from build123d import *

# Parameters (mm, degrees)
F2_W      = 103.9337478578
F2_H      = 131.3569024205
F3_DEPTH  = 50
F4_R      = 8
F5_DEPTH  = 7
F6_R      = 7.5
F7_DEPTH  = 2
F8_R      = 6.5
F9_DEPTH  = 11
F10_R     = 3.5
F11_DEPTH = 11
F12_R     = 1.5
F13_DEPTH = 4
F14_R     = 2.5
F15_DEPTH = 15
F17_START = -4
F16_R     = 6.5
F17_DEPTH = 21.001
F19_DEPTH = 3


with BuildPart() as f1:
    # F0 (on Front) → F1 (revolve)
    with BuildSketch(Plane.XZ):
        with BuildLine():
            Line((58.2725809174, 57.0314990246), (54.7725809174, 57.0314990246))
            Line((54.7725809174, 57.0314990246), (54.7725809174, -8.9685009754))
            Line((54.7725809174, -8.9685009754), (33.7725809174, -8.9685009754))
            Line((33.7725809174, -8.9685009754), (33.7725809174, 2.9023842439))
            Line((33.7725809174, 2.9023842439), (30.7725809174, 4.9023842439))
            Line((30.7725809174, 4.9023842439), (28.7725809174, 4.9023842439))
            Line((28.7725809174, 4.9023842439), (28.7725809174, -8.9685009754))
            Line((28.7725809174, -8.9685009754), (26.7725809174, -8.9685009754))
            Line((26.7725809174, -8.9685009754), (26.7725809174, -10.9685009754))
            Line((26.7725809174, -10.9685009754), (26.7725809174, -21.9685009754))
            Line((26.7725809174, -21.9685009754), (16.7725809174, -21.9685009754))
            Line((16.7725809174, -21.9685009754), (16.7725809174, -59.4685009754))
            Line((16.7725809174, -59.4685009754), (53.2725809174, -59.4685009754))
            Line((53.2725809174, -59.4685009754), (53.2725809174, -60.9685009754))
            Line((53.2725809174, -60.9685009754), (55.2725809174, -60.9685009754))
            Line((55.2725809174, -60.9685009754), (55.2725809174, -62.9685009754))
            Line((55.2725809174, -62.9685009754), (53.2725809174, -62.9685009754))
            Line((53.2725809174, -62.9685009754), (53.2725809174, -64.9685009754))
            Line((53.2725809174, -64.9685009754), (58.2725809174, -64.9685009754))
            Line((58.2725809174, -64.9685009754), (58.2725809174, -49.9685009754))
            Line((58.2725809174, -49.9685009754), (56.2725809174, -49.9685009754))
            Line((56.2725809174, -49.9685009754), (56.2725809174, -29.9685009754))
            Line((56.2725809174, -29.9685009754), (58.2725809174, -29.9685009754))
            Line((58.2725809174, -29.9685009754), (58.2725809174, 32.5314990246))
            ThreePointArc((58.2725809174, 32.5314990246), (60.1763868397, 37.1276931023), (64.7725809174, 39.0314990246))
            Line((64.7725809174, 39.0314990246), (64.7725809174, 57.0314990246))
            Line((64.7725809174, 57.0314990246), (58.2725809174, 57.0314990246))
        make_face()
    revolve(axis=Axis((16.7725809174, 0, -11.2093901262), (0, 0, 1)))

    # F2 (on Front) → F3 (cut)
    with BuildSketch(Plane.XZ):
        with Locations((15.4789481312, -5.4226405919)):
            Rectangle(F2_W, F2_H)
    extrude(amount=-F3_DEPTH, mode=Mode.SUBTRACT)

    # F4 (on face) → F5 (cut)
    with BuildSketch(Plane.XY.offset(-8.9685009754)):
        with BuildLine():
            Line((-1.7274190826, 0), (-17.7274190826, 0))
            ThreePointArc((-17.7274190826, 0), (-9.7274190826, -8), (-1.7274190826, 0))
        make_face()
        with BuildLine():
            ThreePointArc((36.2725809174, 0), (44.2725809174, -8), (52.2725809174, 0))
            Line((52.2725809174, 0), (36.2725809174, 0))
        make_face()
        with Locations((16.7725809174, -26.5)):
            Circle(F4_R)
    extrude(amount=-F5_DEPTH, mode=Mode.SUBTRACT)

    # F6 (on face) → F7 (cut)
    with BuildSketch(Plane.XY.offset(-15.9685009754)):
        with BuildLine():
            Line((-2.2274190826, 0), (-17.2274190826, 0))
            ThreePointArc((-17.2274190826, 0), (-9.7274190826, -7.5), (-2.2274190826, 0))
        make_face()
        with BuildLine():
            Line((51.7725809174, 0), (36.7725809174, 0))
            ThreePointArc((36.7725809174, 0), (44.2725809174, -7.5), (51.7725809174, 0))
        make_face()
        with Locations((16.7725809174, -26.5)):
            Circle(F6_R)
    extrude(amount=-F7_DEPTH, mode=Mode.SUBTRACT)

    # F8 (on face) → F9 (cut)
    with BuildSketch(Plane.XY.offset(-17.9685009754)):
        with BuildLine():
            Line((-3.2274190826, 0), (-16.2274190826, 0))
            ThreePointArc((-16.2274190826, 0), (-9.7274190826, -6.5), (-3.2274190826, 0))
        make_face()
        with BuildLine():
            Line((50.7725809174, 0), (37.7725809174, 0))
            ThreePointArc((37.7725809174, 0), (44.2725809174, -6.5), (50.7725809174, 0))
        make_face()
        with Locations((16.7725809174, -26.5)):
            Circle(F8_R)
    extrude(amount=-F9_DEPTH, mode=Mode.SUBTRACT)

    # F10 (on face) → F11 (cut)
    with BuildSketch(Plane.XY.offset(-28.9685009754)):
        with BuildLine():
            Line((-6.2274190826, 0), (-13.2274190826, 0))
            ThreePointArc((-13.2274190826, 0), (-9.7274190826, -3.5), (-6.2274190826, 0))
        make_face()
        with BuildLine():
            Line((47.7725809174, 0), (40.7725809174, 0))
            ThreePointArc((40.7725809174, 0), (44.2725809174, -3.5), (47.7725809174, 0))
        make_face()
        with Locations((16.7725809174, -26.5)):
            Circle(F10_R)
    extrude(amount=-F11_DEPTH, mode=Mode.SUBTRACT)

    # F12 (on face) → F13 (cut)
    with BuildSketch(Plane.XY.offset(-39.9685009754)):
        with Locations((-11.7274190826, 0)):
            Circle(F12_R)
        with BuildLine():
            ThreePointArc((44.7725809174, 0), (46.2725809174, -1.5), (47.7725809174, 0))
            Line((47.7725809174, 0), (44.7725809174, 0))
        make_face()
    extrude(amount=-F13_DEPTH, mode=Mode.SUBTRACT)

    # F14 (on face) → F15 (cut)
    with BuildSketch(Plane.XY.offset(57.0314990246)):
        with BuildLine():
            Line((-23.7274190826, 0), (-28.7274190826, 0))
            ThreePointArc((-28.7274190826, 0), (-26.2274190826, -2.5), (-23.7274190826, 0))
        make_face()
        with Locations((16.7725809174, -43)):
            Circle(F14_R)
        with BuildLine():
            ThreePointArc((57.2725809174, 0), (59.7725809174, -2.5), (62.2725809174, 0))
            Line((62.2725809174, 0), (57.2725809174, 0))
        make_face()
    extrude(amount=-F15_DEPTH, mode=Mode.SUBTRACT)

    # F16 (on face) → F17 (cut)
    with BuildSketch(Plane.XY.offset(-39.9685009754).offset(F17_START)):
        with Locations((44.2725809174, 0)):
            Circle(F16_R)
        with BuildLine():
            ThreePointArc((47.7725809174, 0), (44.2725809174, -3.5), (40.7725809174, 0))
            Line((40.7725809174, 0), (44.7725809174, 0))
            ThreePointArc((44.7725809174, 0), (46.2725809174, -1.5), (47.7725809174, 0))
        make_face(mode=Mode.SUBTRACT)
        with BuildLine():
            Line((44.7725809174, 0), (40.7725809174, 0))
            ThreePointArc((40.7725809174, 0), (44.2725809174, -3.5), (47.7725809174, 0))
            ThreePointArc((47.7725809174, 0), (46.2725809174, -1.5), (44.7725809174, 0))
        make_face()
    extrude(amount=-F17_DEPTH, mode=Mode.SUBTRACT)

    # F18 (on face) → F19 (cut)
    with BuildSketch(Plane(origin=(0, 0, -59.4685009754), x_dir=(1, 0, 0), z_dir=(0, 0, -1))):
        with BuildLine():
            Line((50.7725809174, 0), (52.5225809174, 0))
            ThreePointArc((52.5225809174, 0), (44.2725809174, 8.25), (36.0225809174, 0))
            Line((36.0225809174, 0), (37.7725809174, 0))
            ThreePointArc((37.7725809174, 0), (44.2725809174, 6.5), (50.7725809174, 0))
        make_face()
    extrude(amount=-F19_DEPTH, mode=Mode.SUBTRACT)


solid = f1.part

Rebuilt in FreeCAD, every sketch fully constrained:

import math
import FreeCAD as App
import Part
import Sketcher
Q = App.Units.Quantity


def add_polygon(sketch, points):
    """Adds a closed chain of lines whose ends are joined by coincident constraints."""
    first, n = sketch.GeometryCount, len(points)
    for a, b in zip(points, points[1:] + points[:1]):
        sketch.addGeometry(Part.LineSegment(App.Vector(*a, 0), App.Vector(*b, 0)), False)
    for i in range(n):
        sketch.addConstraint(Sketcher.Constraint("Coincident", first + i, 2, first + (i + 1) % n, 1))

doc = App.newDocument("Part")
params = doc.addObject("Spreadsheet::Sheet", "Params")
for row, (alias, value) in enumerate([
    ("sketch1_radius", "6.5 mm"),
    ("sketch1_width", "21 mm"),
    ("sketch1_width2", "2 mm"),
    ("sketch1_width3", "10 mm"),
    ("sketch1_width4", "5 mm"),
    ("revolution_angle", "360 deg"),
    ("pocket1_length", "50 mm"),
    ("sketch3_diameter", "16 mm"),
    ("pocket2_length", "7 mm"),
    ("sketch4_diameter", "15 mm"),
    ("pocket3_length", "2 mm"),
    ("sketch5_diameter", "13 mm"),
    ("pocket4_length", "11 mm"),
    ("sketch6_diameter", "7 mm"),
    ("pocket5_length", "11 mm"),
    ("sketch7_diameter", "3 mm"),
    ("pocket6_length", "4 mm"),
    ("sketch8_diameter", "5 mm"),
    ("pocket7_length", "15 mm"),
    ("sketch9_diameter", "13 mm"),
    ("pocket8_length", "21.001 mm"),
    ("sketch10_radius", "6.5 mm"),
    ("sketch10_radius2", "8.25 mm"),
    ("pocket9_length", "3 mm"),
], start=1):
    params.set(f"A{row}", alias)
    params.set(f"B{row}", "=" + value)
    params.setAlias(f"B{row}", alias)

body = doc.addObject("PartDesign::Body", "Body")

# Sketch on XZ plane
sketch1 = body.newObject("Sketcher::SketchObject", "Sketch")
sketch1.AttachmentSupport = (doc.getObject("XZ_Plane"), [""])
sketch1.MapMode = "FlatFace"
sketch1.addGeometry([
    Part.LineSegment(App.Vector(54.8, 57, 0), App.Vector(54.8, -9, 0)),  # 0
    Part.LineSegment(App.Vector(54.8, -9, 0), App.Vector(33.8, -9, 0)),  # 1
    Part.LineSegment(App.Vector(33.8, -9, 0), App.Vector(33.8, 2.9, 0)),  # 2
    Part.LineSegment(App.Vector(33.8, 2.9, 0), App.Vector(30.8, 4.9, 0)),  # 3
    Part.LineSegment(App.Vector(30.8, 4.9, 0), App.Vector(28.8, 4.9, 0)),  # 4
    Part.LineSegment(App.Vector(28.8, 4.9, 0), App.Vector(28.8, -9, 0)),  # 5
    Part.LineSegment(App.Vector(28.8, -9, 0), App.Vector(26.8, -9, 0)),  # 6
    Part.LineSegment(App.Vector(26.8, -9, 0), App.Vector(26.8, -22, 0)),  # 7
    Part.LineSegment(App.Vector(26.8, -22, 0), App.Vector(16.8, -22, 0)),  # 8
    Part.LineSegment(App.Vector(16.8, -22, 0), App.Vector(16.8, -59.5, 0)),  # 9
    Part.LineSegment(App.Vector(16.8, -59.5, 0), App.Vector(53.3, -59.5, 0)),  # 10
    Part.LineSegment(App.Vector(53.3, -59.5, 0), App.Vector(53.3, -61, 0)),  # 11
    Part.LineSegment(App.Vector(53.3, -61, 0), App.Vector(55.3, -61, 0)),  # 12
    Part.LineSegment(App.Vector(55.3, -61, 0), App.Vector(55.3, -63, 0)),  # 13
    Part.LineSegment(App.Vector(55.3, -63, 0), App.Vector(53.3, -63, 0)),  # 14
    Part.LineSegment(App.Vector(53.3, -63, 0), App.Vector(53.3, -65, 0)),  # 15
    Part.LineSegment(App.Vector(53.3, -65, 0), App.Vector(58.3, -65, 0)),  # 16
    Part.LineSegment(App.Vector(58.3, -65, 0), App.Vector(58.3, -50, 0)),  # 17
    Part.LineSegment(App.Vector(58.3, -50, 0), App.Vector(56.3, -50, 0)),  # 18
    Part.LineSegment(App.Vector(56.3, -50, 0), App.Vector(56.3, -30, 0)),  # 19
    Part.LineSegment(App.Vector(56.3, -30, 0), App.Vector(58.3, -30, 0)),  # 20
    Part.LineSegment(App.Vector(58.3, -30, 0), App.Vector(58.3, 32.5, 0)),  # 21
    Part.ArcOfCircle(Part.Circle(App.Vector(64.8, 32.5, 0), App.Vector(0, 0, 1), 6.5), math.radians(90), math.radians(180)),  # 22
    Part.LineSegment(App.Vector(64.8, 39, 0), App.Vector(64.8, 57, 0)),  # 23
    Part.LineSegment(App.Vector(64.8, 57, 0), App.Vector(54.8, 57, 0)),  # 24
], False)
sketch1.addGeometry(Part.LineSegment(App.Vector(16.8, -65, 0), App.Vector(16.8, 57, 0)), True)  # axis
sketch1.addConstraint([
    Sketcher.Constraint("Coincident", 0, 2, 1, 1),
    Sketcher.Constraint("Coincident", 1, 2, 2, 1),
    Sketcher.Constraint("Coincident", 2, 2, 3, 1),
    Sketcher.Constraint("Coincident", 3, 2, 4, 1),
    Sketcher.Constraint("Coincident", 4, 2, 5, 1),
    Sketcher.Constraint("Coincident", 5, 2, 6, 1),
    Sketcher.Constraint("Coincident", 6, 2, 7, 1),
    Sketcher.Constraint("Coincident", 7, 2, 8, 1),
    Sketcher.Constraint("Coincident", 8, 2, 9, 1),
    Sketcher.Constraint("Coincident", 9, 2, 10, 1),
    Sketcher.Constraint("Coincident", 10, 2, 11, 1),
    Sketcher.Constraint("Coincident", 11, 2, 12, 1),
    Sketcher.Constraint("Coincident", 12, 2, 13, 1),
    Sketcher.Constraint("Coincident", 13, 2, 14, 1),
    Sketcher.Constraint("Coincident", 14, 2, 15, 1),
    Sketcher.Constraint("Coincident", 15, 2, 16, 1),
    Sketcher.Constraint("Coincident", 16, 2, 17, 1),
    Sketcher.Constraint("Coincident", 17, 2, 18, 1),
    Sketcher.Constraint("Coincident", 18, 2, 19, 1),
    Sketcher.Constraint("Coincident", 19, 2, 20, 1),
    Sketcher.Constraint("Coincident", 20, 2, 21, 1),
    Sketcher.Constraint("Tangent", 21, 2, 22, 2),
    Sketcher.Constraint("Coincident", 22, 1, 23, 1),
    Sketcher.Constraint("Coincident", 23, 2, 24, 1),
    Sketcher.Constraint("Coincident", 24, 2, 0, 1),
    Sketcher.Constraint("Vertical", 0),
    Sketcher.Constraint("Horizontal", 1),
    Sketcher.Constraint("Vertical", 2),
    Sketcher.Constraint("Horizontal", 4),
    Sketcher.Constraint("Vertical", 5),
    Sketcher.Constraint("Horizontal", 6),
    Sketcher.Constraint("Vertical", 7),
    Sketcher.Constraint("Horizontal", 8),
    Sketcher.Constraint("Vertical", 9),
    Sketcher.Constraint("Horizontal", 10),
    Sketcher.Constraint("Vertical", 11),
    Sketcher.Constraint("Horizontal", 12),
    Sketcher.Constraint("Vertical", 13),
    Sketcher.Constraint("Horizontal", 14),
    Sketcher.Constraint("Vertical", 15),
    Sketcher.Constraint("Horizontal", 16),
    Sketcher.Constraint("Vertical", 17),
    Sketcher.Constraint("Horizontal", 18),
    Sketcher.Constraint("Vertical", 19),
    Sketcher.Constraint("Horizontal", 20),
    Sketcher.Constraint("Vertical", 21),
    Sketcher.Constraint("Vertical", 23),
    Sketcher.Constraint("Horizontal", 24),
    Sketcher.Constraint("Vertical", 25),
    Sketcher.Constraint("Horizontal", 1, 2, 5, 2),
    Sketcher.Constraint("Horizontal", 16, 2, 25, 1),
    Sketcher.Constraint("Horizontal", 24, 2, 25, 2),
    Sketcher.Constraint("Vertical", 11, 2, 14, 2),
    Sketcher.Constraint("Vertical", 17, 2, 20, 2),
    Sketcher.Constraint("Vertical", 9, 2, 25, 1),
    Sketcher.Constraint("Equal", 4, 6),
    Sketcher.Constraint("Equal", 6, 12),
    Sketcher.Constraint("Equal", 14, 18),
    Sketcher.Constraint("Equal", 8, 24),
    Sketcher.Constraint("Equal", 20, 13),
    Sketcher.Constraint("Equal", 13, 15),
    Sketcher.Constraint("Radius", 22, Q("6.5 mm")),
    Sketcher.Constraint("DistanceX", 1, 2, 1, 1, Q("21 mm")),
    Sketcher.Constraint("DistanceX", 4, 2, 4, 1, Q("2 mm")),
    Sketcher.Constraint("DistanceX", 8, 2, 8, 1, Q("10 mm")),
    Sketcher.Constraint("DistanceX", 16, 1, 16, 2, Q("5 mm")),
    Sketcher.Constraint("DistanceY", 0, 2, 0, 1, Q("66 mm")),
    Sketcher.Constraint("DistanceY", 7, 2, 7, 1, Q("13 mm")),
    Sketcher.Constraint("DistanceY", 17, 1, 17, 2, Q("15 mm")),
    Sketcher.Constraint("DistanceY", 19, 1, 19, 2, Q("20 mm")),
    Sketcher.Constraint("DistanceY", 23, 1, 23, 2, Q("18 mm")),
    Sketcher.Constraint("DistanceY", 25, 1, 25, 2, Q("122 mm")),
    Sketcher.Constraint("DistanceX", 10, 1, 10, 2, Q("36.5 mm")),
    Sketcher.Constraint("DistanceY", 9, 2, 9, 1, Q("37.5 mm")),
    Sketcher.Constraint("DistanceX", 0, 2, 22, 3, Q("10 mm")),
    Sketcher.Constraint("DistanceY", 2, 2, 3, 2, Q("2 mm")),
    Sketcher.Constraint("DistanceY", -1, 1, 22, 3, Q("32.531499 mm")),
    Sketcher.Constraint("DistanceY", 2, 1, 2, 2, Q("11.870885 mm")),
    Sketcher.Constraint("DistanceX", -1, 1, 22, 3, Q("64.772581 mm")),
])
sketch1.setExpression("Constraints[61]", "Params.sketch1_radius")
sketch1.setExpression("Constraints[62]", "Params.sketch1_width")
sketch1.setExpression("Constraints[63]", "Params.sketch1_width2")
sketch1.setExpression("Constraints[64]", "Params.sketch1_width3")
sketch1.setExpression("Constraints[65]", "Params.sketch1_width4")
revolution = body.newObject("PartDesign::Revolution", "Revolution")
revolution.Profile = sketch1
revolution.ReferenceAxis = (sketch1, ["Axis0"])
revolution.setExpression("Angle", "Params.revolution_angle")

# Sketch on XZ plane
sketch2 = body.newObject("Sketcher::SketchObject", "Sketch001")
sketch2.AttachmentSupport = (doc.getObject("XZ_Plane"), [""])
sketch2.MapMode = "FlatFace"
add_polygon(sketch2, [(-36, 60), (-36, -71), (67, -71), (67, 60)])  # lines 0-3
sketch2.addConstraint([
    Sketcher.Constraint("Vertical", 0),
    Sketcher.Constraint("Horizontal", 1),
    Sketcher.Constraint("Vertical", 2),
    Sketcher.Constraint("Horizontal", 3),
    Sketcher.Constraint("DistanceX", 1, 1, 1, 2, Q("103.933748 mm")),
    Sketcher.Constraint("DistanceY", 0, 2, 0, 1, Q("131.356902 mm")),
    Sketcher.Constraint("DistanceY", 0, 2, -1, 1, Q("71.101092 mm")),
    Sketcher.Constraint("DistanceX", 0, 2, -1, 1, Q("36.487926 mm")),
])
pocket1 = body.newObject("PartDesign::Pocket", "Pocket")
pocket1.Profile = sketch2
pocket1.setExpression("Length", "Params.pocket1_length")

# Sketch on XY plane
sketch3 = body.newObject("Sketcher::SketchObject", "Sketch002")
sketch3.AttachmentSupport = (doc.getObject("XY_Plane"), [""])
sketch3.MapMode = "FlatFace"
sketch3.AttachmentOffset = App.Placement(App.Vector(0, 0, -8.968501), App.Rotation())
sketch3.addGeometry([
    Part.LineSegment(App.Vector(-2, 0, 0), App.Vector(-18, 0, 0)),  # 0
    Part.ArcOfCircle(Part.Circle(App.Vector(-10, 0, 0), App.Vector(0, 0, 1), 8), math.radians(180), math.radians(360)),  # 1
    Part.ArcOfCircle(Part.Circle(App.Vector(44, 0, 0), App.Vector(0, 0, 1), 8), math.radians(180), math.radians(360)),  # 2
    Part.LineSegment(App.Vector(52, 0, 0), App.Vector(36, 0, 0)),  # 3
    Part.Circle(App.Vector(17, -26, 0), App.Vector(0, 0, 1), 8),  # 4
], False)
sketch3.addConstraint([
    Sketcher.Constraint("Coincident", 0, 1, 1, 2),
    Sketcher.Constraint("Coincident", 1, 1, 0, 2),
    Sketcher.Constraint("Coincident", 2, 1, 3, 2),
    Sketcher.Constraint("Coincident", 3, 1, 2, 2),
    Sketcher.Constraint("Horizontal", 0),
    Sketcher.Constraint("Horizontal", 3),
    Sketcher.Constraint("Equal", 1, 2),
    Sketcher.Constraint("Equal", 2, 4),
    Sketcher.Constraint("PointOnObject", 1, 3, -1),
    Sketcher.Constraint("PointOnObject", 2, 3, -1),
    Sketcher.Constraint("PointOnObject", 0, 1, -1),
    Sketcher.Constraint("PointOnObject", 2, 1, -1),
    Sketcher.Constraint("Diameter", 4, Q("16 mm")),
    Sketcher.Constraint("DistanceX", 1, 3, 2, 3, Q("54 mm")),
    Sketcher.Constraint("DistanceY", 4, 3, -1, 1, Q("26.5 mm")),
    Sketcher.Constraint("DistanceX", 1, 3, 4, 3, Q("26.5 mm")),
    Sketcher.Constraint("DistanceX", 1, 3, -1, 1, Q("9.727419 mm")),
])
sketch3.setExpression("Constraints[12]", "Params.sketch3_diameter")
pocket2 = body.newObject("PartDesign::Pocket", "Pocket001")
pocket2.Profile = sketch3
pocket2.setExpression("Length", "Params.pocket2_length")

# Sketch on XY plane
sketch4 = body.newObject("Sketcher::SketchObject", "Sketch003")
sketch4.AttachmentSupport = (doc.getObject("XY_Plane"), [""])
sketch4.MapMode = "FlatFace"
sketch4.AttachmentOffset = App.Placement(App.Vector(0, 0, -15.968501), App.Rotation())
sketch4.addGeometry([
    Part.LineSegment(App.Vector(-2, 0, 0), App.Vector(-17, 0, 0)),  # 0
    Part.ArcOfCircle(Part.Circle(App.Vector(-10, 0, 0), App.Vector(0, 0, 1), 8), math.radians(180), math.radians(360)),  # 1
    Part.LineSegment(App.Vector(52, 0, 0), App.Vector(37, 0, 0)),  # 2
    Part.ArcOfCircle(Part.Circle(App.Vector(44, 0, 0), App.Vector(0, 0, 1), 8), math.radians(180), math.radians(360)),  # 3
    Part.Circle(App.Vector(17, -26, 0), App.Vector(0, 0, 1), 8),  # 4
], False)
sketch4.addConstraint([
    Sketcher.Constraint("Coincident", 0, 1, 1, 2),
    Sketcher.Constraint("Coincident", 1, 1, 0, 2),
    Sketcher.Constraint("Coincident", 2, 1, 3, 2),
    Sketcher.Constraint("Coincident", 3, 1, 2, 2),
    Sketcher.Constraint("Horizontal", 0),
    Sketcher.Constraint("Horizontal", 2),
    Sketcher.Constraint("Equal", 1, 3),
    Sketcher.Constraint("Equal", 3, 4),
    Sketcher.Constraint("PointOnObject", 1, 3, -1),
    Sketcher.Constraint("PointOnObject", 3, 3, -1),
    Sketcher.Constraint("PointOnObject", 0, 1, -1),
    Sketcher.Constraint("PointOnObject", 2, 1, -1),
    Sketcher.Constraint("Diameter", 4, Q("15 mm")),
    Sketcher.Constraint("DistanceX", 1, 3, 3, 3, Q("54 mm")),
    Sketcher.Constraint("DistanceX", 0, 1, 4, 3, Q("19 mm")),
    Sketcher.Constraint("DistanceY", 4, 3, -1, 1, Q("26.5 mm")),
    Sketcher.Constraint("DistanceX", 1, 3, -1, 1, Q("9.727419 mm")),
])
sketch4.setExpression("Constraints[12]", "Params.sketch4_diameter")
pocket3 = body.newObject("PartDesign::Pocket", "Pocket002")
pocket3.Profile = sketch4
pocket3.setExpression("Length", "Params.pocket3_length")

# Sketch on XY plane
sketch5 = body.newObject("Sketcher::SketchObject", "Sketch004")
sketch5.AttachmentSupport = (doc.getObject("XY_Plane"), [""])
sketch5.MapMode = "FlatFace"
sketch5.AttachmentOffset = App.Placement(App.Vector(0, 0, -17.968501), App.Rotation())
sketch5.addGeometry([
    Part.LineSegment(App.Vector(-3, 0, 0), App.Vector(-16, 0, 0)),  # 0
    Part.ArcOfCircle(Part.Circle(App.Vector(-10, 0, 0), App.Vector(0, 0, 1), 6), math.radians(180), math.radians(360)),  # 1
    Part.LineSegment(App.Vector(51, 0, 0), App.Vector(38, 0, 0)),  # 2
    Part.ArcOfCircle(Part.Circle(App.Vector(44, 0, 0), App.Vector(0, 0, 1), 6), math.radians(180), math.radians(360)),  # 3
    Part.Circle(App.Vector(17, -26, 0), App.Vector(0, 0, 1), 6),  # 4
], False)
sketch5.addConstraint([
    Sketcher.Constraint("Coincident", 0, 1, 1, 2),
    Sketcher.Constraint("Coincident", 1, 1, 0, 2),
    Sketcher.Constraint("Coincident", 2, 1, 3, 2),
    Sketcher.Constraint("Coincident", 3, 1, 2, 2),
    Sketcher.Constraint("Horizontal", 0),
    Sketcher.Constraint("Horizontal", 2),
    Sketcher.Constraint("Equal", 1, 3),
    Sketcher.Constraint("Equal", 3, 4),
    Sketcher.Constraint("PointOnObject", 1, 3, -1),
    Sketcher.Constraint("PointOnObject", 3, 3, -1),
    Sketcher.Constraint("PointOnObject", 0, 1, -1),
    Sketcher.Constraint("PointOnObject", 2, 1, -1),
    Sketcher.Constraint("Diameter", 4, Q("13 mm")),
    Sketcher.Constraint("DistanceX", 1, 3, 3, 3, Q("54 mm")),
    Sketcher.Constraint("DistanceX", 0, 1, 4, 3, Q("20 mm")),
    Sketcher.Constraint("DistanceY", 4, 3, -1, 1, Q("26.5 mm")),
    Sketcher.Constraint("DistanceX", 1, 3, -1, 1, Q("9.727419 mm")),
])
sketch5.setExpression("Constraints[12]", "Params.sketch5_diameter")
pocket4 = body.newObject("PartDesign::Pocket", "Pocket003")
pocket4.Profile = sketch5
pocket4.setExpression("Length", "Params.pocket4_length")

# Sketch on XY plane
sketch6 = body.newObject("Sketcher::SketchObject", "Sketch005")
sketch6.AttachmentSupport = (doc.getObject("XY_Plane"), [""])
sketch6.MapMode = "FlatFace"
sketch6.AttachmentOffset = App.Placement(App.Vector(0, 0, -28.968501), App.Rotation())
sketch6.addGeometry([
    Part.LineSegment(App.Vector(-6.2, 0, 0), App.Vector(-13.2, 0, 0)),  # 0
    Part.ArcOfCircle(Part.Circle(App.Vector(-9.7, 0, 0), App.Vector(0, 0, 1), 3.5), math.radians(180), math.radians(360)),  # 1
    Part.LineSegment(App.Vector(47.8, 0, 0), App.Vector(40.8, 0, 0)),  # 2
    Part.ArcOfCircle(Part.Circle(App.Vector(44.3, 0, 0), App.Vector(0, 0, 1), 3.5), math.radians(180), math.radians(360)),  # 3
    Part.Circle(App.Vector(16.8, -26.5, 0), App.Vector(0, 0, 1), 3.5),  # 4
], False)
sketch6.addConstraint([
    Sketcher.Constraint("Coincident", 0, 1, 1, 2),
    Sketcher.Constraint("Coincident", 1, 1, 0, 2),
    Sketcher.Constraint("Coincident", 2, 1, 3, 2),
    Sketcher.Constraint("Coincident", 3, 1, 2, 2),
    Sketcher.Constraint("Horizontal", 0),
    Sketcher.Constraint("Horizontal", 2),
    Sketcher.Constraint("Equal", 1, 3),
    Sketcher.Constraint("Equal", 3, 4),
    Sketcher.Constraint("PointOnObject", 1, 3, -1),
    Sketcher.Constraint("PointOnObject", 3, 3, -1),
    Sketcher.Constraint("PointOnObject", 0, 1, -1),
    Sketcher.Constraint("PointOnObject", 2, 1, -1),
    Sketcher.Constraint("Diameter", 4, Q("7 mm")),
    Sketcher.Constraint("DistanceX", 1, 3, 3, 3, Q("54 mm")),
    Sketcher.Constraint("DistanceX", 0, 1, 4, 3, Q("23 mm")),
    Sketcher.Constraint("DistanceY", 4, 3, -1, 1, Q("26.5 mm")),
    Sketcher.Constraint("DistanceX", 1, 3, -1, 1, Q("9.727419 mm")),
])
sketch6.setExpression("Constraints[12]", "Params.sketch6_diameter")
pocket5 = body.newObject("PartDesign::Pocket", "Pocket004")
pocket5.Profile = sketch6
pocket5.setExpression("Length", "Params.pocket5_length")

# Sketch on XY plane
sketch7 = body.newObject("Sketcher::SketchObject", "Sketch006")
sketch7.AttachmentSupport = (doc.getObject("XY_Plane"), [""])
sketch7.MapMode = "FlatFace"
sketch7.AttachmentOffset = App.Placement(App.Vector(0, 0, -39.968501), App.Rotation())
sketch7.addGeometry([
    Part.Circle(App.Vector(-11.7, 0, 0), App.Vector(0, 0, 1), 1.5),
    Part.ArcOfCircle(Part.Circle(App.Vector(46.3, 0, 0), App.Vector(0, 0, 1), 1.5), math.radians(180), math.radians(360)),
    Part.LineSegment(App.Vector(47.8, 0, 0), App.Vector(44.8, 0, 0)),
], False)
sketch7.addConstraint([
    Sketcher.Constraint("Coincident", 1, 1, 2, 2),
    Sketcher.Constraint("Coincident", 2, 1, 1, 2),
    Sketcher.Constraint("Horizontal", 2),
    Sketcher.Constraint("Equal", 0, 1),
    Sketcher.Constraint("PointOnObject", 0, 3, -1),
    Sketcher.Constraint("PointOnObject", 1, 3, -1),
    Sketcher.Constraint("PointOnObject", 1, 1, -1),
    Sketcher.Constraint("Diameter", 0, Q("3 mm")),
    Sketcher.Constraint("DistanceX", 0, 3, 1, 3, Q("58 mm")),
    Sketcher.Constraint("DistanceX", 0, 3, -1, 1, Q("11.727419 mm")),
])
sketch7.setExpression("Constraints[7]", "Params.sketch7_diameter")
pocket6 = body.newObject("PartDesign::Pocket", "Pocket005")
pocket6.Profile = sketch7
pocket6.setExpression("Length", "Params.pocket6_length")

# Sketch on XY plane
sketch8 = body.newObject("Sketcher::SketchObject", "Sketch007")
sketch8.AttachmentSupport = (doc.getObject("XY_Plane"), [""])
sketch8.MapMode = "FlatFace"
sketch8.AttachmentOffset = App.Placement(App.Vector(0, 0, 57.031499), App.Rotation())
sketch8.addGeometry([
    Part.LineSegment(App.Vector(-23.7, 0, 0), App.Vector(-28.7, 0, 0)),  # 0
    Part.ArcOfCircle(Part.Circle(App.Vector(-26.2, 0, 0), App.Vector(0, 0, 1), 2.5), math.radians(180), math.radians(360)),  # 1
    Part.Circle(App.Vector(16.8, -43, 0), App.Vector(0, 0, 1), 2.5),  # 2
    Part.ArcOfCircle(Part.Circle(App.Vector(59.8, 0, 0), App.Vector(0, 0, 1), 2.5), math.radians(180), math.radians(360)),  # 3
    Part.LineSegment(App.Vector(62.3, 0, 0), App.Vector(57.3, 0, 0)),  # 4
], False)
sketch8.addConstraint([
    Sketcher.Constraint("Coincident", 0, 1, 1, 2),
    Sketcher.Constraint("Coincident", 1, 1, 0, 2),
    Sketcher.Constraint("Coincident", 3, 1, 4, 2),
    Sketcher.Constraint("Coincident", 4, 1, 3, 2),
    Sketcher.Constraint("Horizontal", 0),
    Sketcher.Constraint("Horizontal", 4),
    Sketcher.Constraint("Equal", 1, 2),
    Sketcher.Constraint("Equal", 2, 3),
    Sketcher.Constraint("PointOnObject", 1, 3, -1),
    Sketcher.Constraint("PointOnObject", 3, 3, -1),
    Sketcher.Constraint("PointOnObject", 0, 1, -1),
    Sketcher.Constraint("PointOnObject", 3, 1, -1),
    Sketcher.Constraint("Diameter", 2, Q("5 mm")),
    Sketcher.Constraint("DistanceY", 2, 3, -1, 1, Q("43 mm")),
    Sketcher.Constraint("DistanceX", 1, 3, 2, 3, Q("43 mm")),
    Sketcher.Constraint("DistanceX", 2, 3, 3, 3, Q("43 mm")),
    Sketcher.Constraint("DistanceX", 1, 3, -1, 1, Q("26.227419 mm")),
])
sketch8.setExpression("Constraints[12]", "Params.sketch8_diameter")
pocket7 = body.newObject("PartDesign::Pocket", "Pocket006")
pocket7.Profile = sketch8
pocket7.setExpression("Length", "Params.pocket7_length")

# Sketch on XY plane
sketch9 = body.newObject("Sketcher::SketchObject", "Sketch008")
sketch9.AttachmentSupport = (doc.getObject("XY_Plane"), [""])
sketch9.MapMode = "FlatFace"
sketch9.AttachmentOffset = App.Placement(App.Vector(0, 0, -43.968501), App.Rotation())
sketch9.addGeometry(Part.Circle(App.Vector(44, 0, 0), App.Vector(0, 0, 1), 6), False)
sketch9.addConstraint([
    Sketcher.Constraint("PointOnObject", 0, 3, -1),
    Sketcher.Constraint("Diameter", 0, Q("13 mm")),
    Sketcher.Constraint("DistanceX", -1, 1, 0, 3, Q("44.272581 mm")),
])
sketch9.setExpression("Constraints[1]", "Params.sketch9_diameter")
pocket8 = body.newObject("PartDesign::Pocket", "Pocket007")
pocket8.Profile = sketch9
pocket8.setExpression("Length", "Params.pocket8_length")

# Sketch on XY plane
sketch10 = body.newObject("Sketcher::SketchObject", "Sketch009")
sketch10.AttachmentSupport = (doc.getObject("XY_Plane"), [""])
sketch10.MapMode = "FlatFace"
sketch10.AttachmentOffset = App.Placement(App.Vector(0, 0, -59.468501), App.Rotation())
sketch10.addGeometry([
    Part.LineSegment(App.Vector(50.8, 0, 0), App.Vector(52.5, 0, 0)),
    Part.ArcOfCircle(Part.Circle(App.Vector(44.3, 0, 0), App.Vector(0, 0, 1), 8.2), math.radians(180), math.radians(360)),
    Part.LineSegment(App.Vector(36, 0, 0), App.Vector(37.8, 0, 0)),
    Part.ArcOfCircle(Part.Circle(App.Vector(44.3, 0, 0), App.Vector(0, 0, 1), 6.5), math.radians(180), math.radians(360)),
], False)
sketch10.addConstraint([
    Sketcher.Constraint("Coincident", 0, 2, 1, 2),
    Sketcher.Constraint("Coincident", 1, 1, 2, 1),
    Sketcher.Constraint("Coincident", 2, 2, 3, 1),
    Sketcher.Constraint("Coincident", 3, 2, 0, 1),
    Sketcher.Constraint("Horizontal", 0),
    Sketcher.Constraint("Horizontal", 2),
    Sketcher.Constraint("Coincident", 3, 3, 1, 3),
    Sketcher.Constraint("PointOnObject", 1, 3, -1),
    Sketcher.Constraint("PointOnObject", 0, 2, -1),
    Sketcher.Constraint("PointOnObject", 1, 1, -1),
    Sketcher.Constraint("Radius", 3, Q("6.5 mm")),
    Sketcher.Constraint("Radius", 1, Q("8.25 mm")),
    Sketcher.Constraint("DistanceX", -1, 1, 1, 3, Q("44.272581 mm")),
])
sketch10.setExpression("Constraints[10]", "Params.sketch10_radius")
sketch10.setExpression("Constraints[11]", "Params.sketch10_radius2")
pocket9 = body.newObject("PartDesign::Pocket", "Pocket008")
pocket9.Profile = sketch10
pocket9.setExpression("Length", "Params.pocket9_length")
pocket9.Reversed = True

doc.recompute()
